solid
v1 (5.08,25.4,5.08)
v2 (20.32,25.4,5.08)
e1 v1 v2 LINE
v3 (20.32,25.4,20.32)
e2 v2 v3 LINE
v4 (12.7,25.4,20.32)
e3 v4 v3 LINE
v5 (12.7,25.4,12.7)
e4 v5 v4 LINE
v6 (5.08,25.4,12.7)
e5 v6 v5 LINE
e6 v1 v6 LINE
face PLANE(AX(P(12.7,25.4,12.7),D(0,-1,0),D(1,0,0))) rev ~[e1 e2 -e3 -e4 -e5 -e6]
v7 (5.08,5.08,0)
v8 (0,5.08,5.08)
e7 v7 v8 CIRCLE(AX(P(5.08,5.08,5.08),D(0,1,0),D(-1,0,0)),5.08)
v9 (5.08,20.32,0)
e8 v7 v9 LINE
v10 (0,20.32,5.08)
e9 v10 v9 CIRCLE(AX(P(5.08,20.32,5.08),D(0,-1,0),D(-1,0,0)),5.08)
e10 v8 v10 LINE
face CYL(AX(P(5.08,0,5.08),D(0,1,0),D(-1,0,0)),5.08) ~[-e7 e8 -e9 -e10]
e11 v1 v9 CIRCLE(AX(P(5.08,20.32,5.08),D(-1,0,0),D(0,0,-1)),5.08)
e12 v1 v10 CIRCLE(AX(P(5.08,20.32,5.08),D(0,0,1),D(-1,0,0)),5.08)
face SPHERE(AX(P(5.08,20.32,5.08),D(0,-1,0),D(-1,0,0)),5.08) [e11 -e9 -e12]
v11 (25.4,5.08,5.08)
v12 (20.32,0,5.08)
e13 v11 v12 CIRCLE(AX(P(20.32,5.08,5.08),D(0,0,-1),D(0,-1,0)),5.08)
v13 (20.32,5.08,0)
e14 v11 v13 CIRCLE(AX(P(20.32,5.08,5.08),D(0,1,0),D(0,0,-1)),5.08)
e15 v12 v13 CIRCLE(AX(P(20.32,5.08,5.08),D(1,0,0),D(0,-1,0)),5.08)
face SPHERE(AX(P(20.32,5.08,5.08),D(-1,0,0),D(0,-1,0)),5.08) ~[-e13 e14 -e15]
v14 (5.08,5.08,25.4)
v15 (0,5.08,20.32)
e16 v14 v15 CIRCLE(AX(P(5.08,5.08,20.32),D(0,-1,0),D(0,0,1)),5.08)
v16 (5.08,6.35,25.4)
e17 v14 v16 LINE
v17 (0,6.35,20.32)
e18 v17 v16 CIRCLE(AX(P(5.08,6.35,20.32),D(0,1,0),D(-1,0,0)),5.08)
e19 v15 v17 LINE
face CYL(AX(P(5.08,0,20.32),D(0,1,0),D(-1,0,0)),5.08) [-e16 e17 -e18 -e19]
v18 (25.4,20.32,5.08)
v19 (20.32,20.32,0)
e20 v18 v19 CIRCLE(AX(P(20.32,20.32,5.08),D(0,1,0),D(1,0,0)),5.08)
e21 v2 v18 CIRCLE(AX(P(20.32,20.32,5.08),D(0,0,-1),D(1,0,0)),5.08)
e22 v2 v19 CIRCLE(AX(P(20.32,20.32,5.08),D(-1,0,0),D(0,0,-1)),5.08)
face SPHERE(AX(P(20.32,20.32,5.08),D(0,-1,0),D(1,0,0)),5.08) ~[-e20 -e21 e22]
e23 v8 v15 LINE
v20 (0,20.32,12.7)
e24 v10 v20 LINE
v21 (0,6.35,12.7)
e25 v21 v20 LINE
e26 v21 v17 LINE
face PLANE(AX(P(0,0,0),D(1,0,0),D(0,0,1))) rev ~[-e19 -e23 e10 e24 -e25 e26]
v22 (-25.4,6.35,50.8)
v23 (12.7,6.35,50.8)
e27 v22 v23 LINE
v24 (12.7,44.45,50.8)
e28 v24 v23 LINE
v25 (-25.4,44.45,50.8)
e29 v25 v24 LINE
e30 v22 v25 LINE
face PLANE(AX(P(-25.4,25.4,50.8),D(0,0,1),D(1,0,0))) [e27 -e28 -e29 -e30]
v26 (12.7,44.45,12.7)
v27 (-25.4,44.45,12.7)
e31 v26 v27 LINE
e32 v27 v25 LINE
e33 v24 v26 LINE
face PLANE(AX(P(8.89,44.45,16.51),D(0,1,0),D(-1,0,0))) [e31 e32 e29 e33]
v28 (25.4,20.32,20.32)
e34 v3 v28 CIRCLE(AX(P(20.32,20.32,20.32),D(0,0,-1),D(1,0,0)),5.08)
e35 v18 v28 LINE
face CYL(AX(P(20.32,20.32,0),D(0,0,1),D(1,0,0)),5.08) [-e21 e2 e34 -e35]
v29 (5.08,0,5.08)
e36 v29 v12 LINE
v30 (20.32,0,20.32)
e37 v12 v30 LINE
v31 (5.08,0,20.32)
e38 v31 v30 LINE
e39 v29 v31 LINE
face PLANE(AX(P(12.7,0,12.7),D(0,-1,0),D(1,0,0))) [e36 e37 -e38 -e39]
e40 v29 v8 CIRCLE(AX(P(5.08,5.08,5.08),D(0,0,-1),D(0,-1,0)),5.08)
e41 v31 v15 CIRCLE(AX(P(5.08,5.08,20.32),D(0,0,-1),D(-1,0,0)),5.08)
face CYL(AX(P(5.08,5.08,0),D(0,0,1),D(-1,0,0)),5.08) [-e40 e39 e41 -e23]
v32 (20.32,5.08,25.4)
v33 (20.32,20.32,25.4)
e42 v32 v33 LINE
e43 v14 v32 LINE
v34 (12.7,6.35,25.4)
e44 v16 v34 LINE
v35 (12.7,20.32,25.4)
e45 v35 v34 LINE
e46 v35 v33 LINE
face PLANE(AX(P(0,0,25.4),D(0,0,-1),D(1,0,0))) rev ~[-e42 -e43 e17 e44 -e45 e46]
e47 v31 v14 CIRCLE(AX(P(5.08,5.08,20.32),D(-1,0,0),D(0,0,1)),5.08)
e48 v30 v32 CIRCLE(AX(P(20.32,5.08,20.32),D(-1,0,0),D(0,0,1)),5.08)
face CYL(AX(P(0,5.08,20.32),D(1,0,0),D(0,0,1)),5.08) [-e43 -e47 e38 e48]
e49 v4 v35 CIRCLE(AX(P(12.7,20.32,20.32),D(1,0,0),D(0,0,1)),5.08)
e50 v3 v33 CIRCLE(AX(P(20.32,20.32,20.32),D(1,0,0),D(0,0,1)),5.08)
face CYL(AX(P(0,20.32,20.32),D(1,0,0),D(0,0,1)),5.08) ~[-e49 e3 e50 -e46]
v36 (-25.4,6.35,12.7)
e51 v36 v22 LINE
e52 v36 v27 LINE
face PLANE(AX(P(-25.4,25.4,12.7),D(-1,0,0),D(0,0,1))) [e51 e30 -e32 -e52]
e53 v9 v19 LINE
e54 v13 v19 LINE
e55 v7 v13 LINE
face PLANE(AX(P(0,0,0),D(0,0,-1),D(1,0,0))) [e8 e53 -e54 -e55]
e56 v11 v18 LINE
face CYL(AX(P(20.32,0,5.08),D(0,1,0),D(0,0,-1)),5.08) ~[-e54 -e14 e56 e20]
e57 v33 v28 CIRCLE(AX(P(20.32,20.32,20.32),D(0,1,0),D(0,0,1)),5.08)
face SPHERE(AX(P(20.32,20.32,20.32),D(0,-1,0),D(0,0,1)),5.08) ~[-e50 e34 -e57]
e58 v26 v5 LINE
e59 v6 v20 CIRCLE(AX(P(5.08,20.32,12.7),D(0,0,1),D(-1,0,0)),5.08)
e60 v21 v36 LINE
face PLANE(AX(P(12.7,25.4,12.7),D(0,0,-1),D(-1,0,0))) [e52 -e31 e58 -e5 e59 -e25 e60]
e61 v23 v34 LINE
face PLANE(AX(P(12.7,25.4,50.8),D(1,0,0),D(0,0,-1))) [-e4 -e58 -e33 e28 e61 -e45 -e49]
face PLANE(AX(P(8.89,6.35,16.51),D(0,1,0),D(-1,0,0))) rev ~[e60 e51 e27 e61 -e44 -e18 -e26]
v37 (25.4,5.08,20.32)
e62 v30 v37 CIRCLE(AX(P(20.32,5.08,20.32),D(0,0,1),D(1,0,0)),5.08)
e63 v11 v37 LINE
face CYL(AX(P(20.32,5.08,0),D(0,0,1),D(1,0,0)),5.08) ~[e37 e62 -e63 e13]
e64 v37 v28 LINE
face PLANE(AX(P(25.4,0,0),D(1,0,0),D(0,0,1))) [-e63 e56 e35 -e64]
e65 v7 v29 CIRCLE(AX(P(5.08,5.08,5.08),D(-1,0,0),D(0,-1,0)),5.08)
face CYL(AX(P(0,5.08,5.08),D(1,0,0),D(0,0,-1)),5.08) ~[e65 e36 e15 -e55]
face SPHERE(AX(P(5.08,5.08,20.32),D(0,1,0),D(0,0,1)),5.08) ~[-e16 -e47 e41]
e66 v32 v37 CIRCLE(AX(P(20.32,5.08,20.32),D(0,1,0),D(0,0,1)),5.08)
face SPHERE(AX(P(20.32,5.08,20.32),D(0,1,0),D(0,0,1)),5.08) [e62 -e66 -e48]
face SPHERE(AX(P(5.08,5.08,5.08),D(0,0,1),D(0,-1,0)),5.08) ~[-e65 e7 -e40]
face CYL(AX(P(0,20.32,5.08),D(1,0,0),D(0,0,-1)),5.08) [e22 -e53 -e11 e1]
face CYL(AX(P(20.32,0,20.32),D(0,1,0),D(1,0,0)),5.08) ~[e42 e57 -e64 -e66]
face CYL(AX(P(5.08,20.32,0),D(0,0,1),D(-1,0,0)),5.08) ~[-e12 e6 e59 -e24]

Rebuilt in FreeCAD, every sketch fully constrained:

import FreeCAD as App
import Part
import Sketcher
Q = App.Units.Quantity

doc = App.newDocument("Part")
body = doc.addObject("PartDesign::Body", "Body")

# Sketch on XZ plane
sketch1 = body.newObject("Sketcher::SketchObject", "Sketch")
sketch1.AttachmentSupport = (doc.getObject("XZ_Plane"), [""])
sketch1.MapMode = "FlatFace"
sketch1.addGeometry([
    Part.LineSegment(App.Vector(0, 25, 0), App.Vector(0, 0, 0)),
    Part.LineSegment(App.Vector(0, 0, 0), App.Vector(25, 0, 0)),
    Part.LineSegment(App.Vector(25, 0, 0), App.Vector(25, 25, 0)),
    Part.LineSegment(App.Vector(25, 25, 0), App.Vector(0, 25, 0)),
], False)
sketch1.addConstraint([
    Sketcher.Constraint("Coincident", 0, 2, 1, 1),
    Sketcher.Constraint("Coincident", 1, 2, 2, 1),
    Sketcher.Constraint("Coincident", 2, 2, 3, 1),
    Sketcher.Constraint("Coincident", 3, 2, 0, 1),
    Sketcher.Constraint("Vertical", 0),
    Sketcher.Constraint("Horizontal", 1),
    Sketcher.Constraint("Vertical", 2),
    Sketcher.Constraint("Horizontal", 3),
    Sketcher.Constraint("Coincident", 0, 2, -1, 1),
    Sketcher.Constraint("Equal", 3, 0),
    Sketcher.Constraint("DistanceX", 1, 1, 1, 2, Q("1 in")),
])
pad1 = body.newObject("PartDesign::Pad", "Pad")
pad1.Profile = sketch1
pad1.Length = Q("1 in")
pad1.Reversed = True
doc.recompute()

fillet = body.newObject("PartDesign::Fillet", "Fillet")
fillet.Base = (pad1, ["Edge1"])
fillet.UseAllEdges = True
fillet.Radius = Q("0.2 in")

# Sketch on XZ plane
sketch2 = body.newObject("Sketcher::SketchObject", "Sketch001")
sketch2.AttachmentSupport = (doc.getObject("XZ_Plane"), [""])
sketch2.MapMode = "FlatFace"
sketch2.AttachmentOffset = App.Placement(App.Vector(0, 0, -1 * 25.4), App.Rotation())
sketch2.addGeometry([
    Part.LineSegment(App.Vector(13, 13, 0), App.Vector(-25, 13, 0)),
    Part.LineSegment(App.Vector(-25, 13, 0), App.Vector(-25, 51, 0)),
    Part.LineSegment(App.Vector(-25, 51, 0), App.Vector(13, 51, 0)),
    Part.LineSegment(App.Vector(13, 51, 0), App.Vector(13, 13, 0)),
], False)
sketch2.addConstraint([
    Sketcher.Constraint("Coincident", 0, 2, 1, 1),
    Sketcher.Constraint("Coincident", 1, 2, 2, 1),
    Sketcher.Constraint("Coincident", 2, 2, 3, 1),
    Sketcher.Constraint("Coincident", 3, 2, 0, 1),
    Sketcher.Constraint("Horizontal", 0),
    Sketcher.Constraint("Vertical", 1),
    Sketcher.Constraint("Horizontal", 2),
    Sketcher.Constraint("Vertical", 3),
    Sketcher.Constraint("Equal", 2, 1),
    Sketcher.Constraint("DistanceX", 0, 2, 0, 1, Q("1.5 in")),
    Sketcher.Constraint("DistanceX", 0, 2, -1, 1, Q("1 in")),
    Sketcher.Constraint("DistanceY", -1, 1, 1, 2, Q("2 in")),
])
pad2 = body.newObject("PartDesign::Pad", "Pad001")
pad2.Profile = sketch2
pad2.Length = Q("1.5 in")
pad2.Midplane = True

doc.recompute()
